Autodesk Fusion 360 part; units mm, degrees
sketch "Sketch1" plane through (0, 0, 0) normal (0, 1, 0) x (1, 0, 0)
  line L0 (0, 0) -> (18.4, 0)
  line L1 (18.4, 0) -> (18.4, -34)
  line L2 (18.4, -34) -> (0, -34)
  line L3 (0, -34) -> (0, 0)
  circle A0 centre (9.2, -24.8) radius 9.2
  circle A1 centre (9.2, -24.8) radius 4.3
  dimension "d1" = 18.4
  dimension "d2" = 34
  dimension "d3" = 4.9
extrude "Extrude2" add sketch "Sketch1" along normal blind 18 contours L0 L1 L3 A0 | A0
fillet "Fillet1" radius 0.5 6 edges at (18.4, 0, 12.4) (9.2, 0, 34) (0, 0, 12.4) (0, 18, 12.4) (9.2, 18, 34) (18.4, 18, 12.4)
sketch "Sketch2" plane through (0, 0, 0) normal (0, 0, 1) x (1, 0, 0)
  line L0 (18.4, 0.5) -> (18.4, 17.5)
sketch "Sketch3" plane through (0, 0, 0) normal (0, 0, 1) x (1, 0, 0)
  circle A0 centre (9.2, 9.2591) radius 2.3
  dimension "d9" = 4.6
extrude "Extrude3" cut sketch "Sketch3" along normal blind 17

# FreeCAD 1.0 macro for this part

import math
import FreeCAD as App
import Part
import Sketcher

V = App.Vector


def edges_at(feature, points):
    """Names of the edges that pass closest to the given points."""
    edges = feature.Shape.Edges
    near = lambda p: min(range(len(edges)), key=lambda i: edges[i].distToShape(Part.Vertex(*p))[0])
    return sorted({f"Edge{near(p) + 1}" for p in points})

doc = App.newDocument("Part")
body = doc.addObject("PartDesign::Body", "Body")

sketch1 = body.newObject("Sketcher::SketchObject", "Sketch")
sketch1.AttachmentSupport = (doc.getObject("XZ_Plane"), [""])
sketch1.MapMode = "FlatFace"
sketch1.addGeometry([
    Part.LineSegment(V(18.4, 0, 0), V(0, 0, 0)),
    Part.LineSegment(V(0, 0, 0), V(0, 24.8, 0)),
    Part.ArcOfCircle(Part.Circle(V(9.2, 24.8, 0), V(0, 0, 1), 9.2), math.radians(0), math.radians(180)),
    Part.LineSegment(V(18.4, 24.8, 0), V(18.4, 0, 0)),
    Part.Circle(V(9.2, 24.8, 0), V(0, 0, 1), 4.3),
], False)
sketch1.addConstraint([
    Sketcher.Constraint("Coincident", 0, 2, 1, 1),
    Sketcher.Constraint("Tangent", 1, 2, 2, 2),
    Sketcher.Constraint("Tangent", 2, 1, 3, 1),
    Sketcher.Constraint("Coincident", 3, 2, 0, 1),
    Sketcher.Constraint("Horizontal", 0),
    Sketcher.Constraint("Vertical", 1),
    Sketcher.Constraint("Vertical", 3),
    Sketcher.Constraint("Coincident", 0, 2, -1, 1),
    Sketcher.Constraint("Coincident", 4, 3, 2, 3),
    Sketcher.Constraint("Radius", 2, 9.2),
    Sketcher.Constraint("Diameter", 4, 8.6),
    Sketcher.Constraint("DistanceY", 1, 1, 1, 2, 24.8),
])
pad1 = body.newObject("PartDesign::Pad", "Pad")
pad1.Profile = sketch1
pad1.Length = 18
pad1.Reversed = True
doc.recompute()

fillet = body.newObject("PartDesign::Fillet", "Fillet")
fillet.Base = (pad1, edges_at(pad1, [
    (18.4, 0, 12.4),
    (9.2, 0, 34),
    (0, 0, 12.4),
    (0, 18, 12.4),
    (9.2, 18, 34),
    (18.4, 18, 12.4),
]))
fillet.Radius = 0.5

sketch2 = body.newObject("Sketcher::SketchObject", "Sketch001")
sketch2.AttachmentSupport = (doc.getObject("XY_Plane"), [""])
sketch2.MapMode = "FlatFace"
sketch2.addGeometry(Part.Circle(V(9.2, 9.3, 0), V(0, 0, 1), 2.3), False)
sketch2.addConstraint([
    Sketcher.Constraint("Diameter", 0, 4.6),
    Sketcher.Constraint("DistanceX", -1, 1, 0, 3, 9.2),
    Sketcher.Constraint("DistanceY", -1, 1, 0, 3, 9.259),
])
pocket1 = body.newObject("PartDesign::Pocket", "Pocket")
pocket1.Profile = sketch2
pocket1.Length = 17
pocket1.Reversed = True

doc.recompute()
